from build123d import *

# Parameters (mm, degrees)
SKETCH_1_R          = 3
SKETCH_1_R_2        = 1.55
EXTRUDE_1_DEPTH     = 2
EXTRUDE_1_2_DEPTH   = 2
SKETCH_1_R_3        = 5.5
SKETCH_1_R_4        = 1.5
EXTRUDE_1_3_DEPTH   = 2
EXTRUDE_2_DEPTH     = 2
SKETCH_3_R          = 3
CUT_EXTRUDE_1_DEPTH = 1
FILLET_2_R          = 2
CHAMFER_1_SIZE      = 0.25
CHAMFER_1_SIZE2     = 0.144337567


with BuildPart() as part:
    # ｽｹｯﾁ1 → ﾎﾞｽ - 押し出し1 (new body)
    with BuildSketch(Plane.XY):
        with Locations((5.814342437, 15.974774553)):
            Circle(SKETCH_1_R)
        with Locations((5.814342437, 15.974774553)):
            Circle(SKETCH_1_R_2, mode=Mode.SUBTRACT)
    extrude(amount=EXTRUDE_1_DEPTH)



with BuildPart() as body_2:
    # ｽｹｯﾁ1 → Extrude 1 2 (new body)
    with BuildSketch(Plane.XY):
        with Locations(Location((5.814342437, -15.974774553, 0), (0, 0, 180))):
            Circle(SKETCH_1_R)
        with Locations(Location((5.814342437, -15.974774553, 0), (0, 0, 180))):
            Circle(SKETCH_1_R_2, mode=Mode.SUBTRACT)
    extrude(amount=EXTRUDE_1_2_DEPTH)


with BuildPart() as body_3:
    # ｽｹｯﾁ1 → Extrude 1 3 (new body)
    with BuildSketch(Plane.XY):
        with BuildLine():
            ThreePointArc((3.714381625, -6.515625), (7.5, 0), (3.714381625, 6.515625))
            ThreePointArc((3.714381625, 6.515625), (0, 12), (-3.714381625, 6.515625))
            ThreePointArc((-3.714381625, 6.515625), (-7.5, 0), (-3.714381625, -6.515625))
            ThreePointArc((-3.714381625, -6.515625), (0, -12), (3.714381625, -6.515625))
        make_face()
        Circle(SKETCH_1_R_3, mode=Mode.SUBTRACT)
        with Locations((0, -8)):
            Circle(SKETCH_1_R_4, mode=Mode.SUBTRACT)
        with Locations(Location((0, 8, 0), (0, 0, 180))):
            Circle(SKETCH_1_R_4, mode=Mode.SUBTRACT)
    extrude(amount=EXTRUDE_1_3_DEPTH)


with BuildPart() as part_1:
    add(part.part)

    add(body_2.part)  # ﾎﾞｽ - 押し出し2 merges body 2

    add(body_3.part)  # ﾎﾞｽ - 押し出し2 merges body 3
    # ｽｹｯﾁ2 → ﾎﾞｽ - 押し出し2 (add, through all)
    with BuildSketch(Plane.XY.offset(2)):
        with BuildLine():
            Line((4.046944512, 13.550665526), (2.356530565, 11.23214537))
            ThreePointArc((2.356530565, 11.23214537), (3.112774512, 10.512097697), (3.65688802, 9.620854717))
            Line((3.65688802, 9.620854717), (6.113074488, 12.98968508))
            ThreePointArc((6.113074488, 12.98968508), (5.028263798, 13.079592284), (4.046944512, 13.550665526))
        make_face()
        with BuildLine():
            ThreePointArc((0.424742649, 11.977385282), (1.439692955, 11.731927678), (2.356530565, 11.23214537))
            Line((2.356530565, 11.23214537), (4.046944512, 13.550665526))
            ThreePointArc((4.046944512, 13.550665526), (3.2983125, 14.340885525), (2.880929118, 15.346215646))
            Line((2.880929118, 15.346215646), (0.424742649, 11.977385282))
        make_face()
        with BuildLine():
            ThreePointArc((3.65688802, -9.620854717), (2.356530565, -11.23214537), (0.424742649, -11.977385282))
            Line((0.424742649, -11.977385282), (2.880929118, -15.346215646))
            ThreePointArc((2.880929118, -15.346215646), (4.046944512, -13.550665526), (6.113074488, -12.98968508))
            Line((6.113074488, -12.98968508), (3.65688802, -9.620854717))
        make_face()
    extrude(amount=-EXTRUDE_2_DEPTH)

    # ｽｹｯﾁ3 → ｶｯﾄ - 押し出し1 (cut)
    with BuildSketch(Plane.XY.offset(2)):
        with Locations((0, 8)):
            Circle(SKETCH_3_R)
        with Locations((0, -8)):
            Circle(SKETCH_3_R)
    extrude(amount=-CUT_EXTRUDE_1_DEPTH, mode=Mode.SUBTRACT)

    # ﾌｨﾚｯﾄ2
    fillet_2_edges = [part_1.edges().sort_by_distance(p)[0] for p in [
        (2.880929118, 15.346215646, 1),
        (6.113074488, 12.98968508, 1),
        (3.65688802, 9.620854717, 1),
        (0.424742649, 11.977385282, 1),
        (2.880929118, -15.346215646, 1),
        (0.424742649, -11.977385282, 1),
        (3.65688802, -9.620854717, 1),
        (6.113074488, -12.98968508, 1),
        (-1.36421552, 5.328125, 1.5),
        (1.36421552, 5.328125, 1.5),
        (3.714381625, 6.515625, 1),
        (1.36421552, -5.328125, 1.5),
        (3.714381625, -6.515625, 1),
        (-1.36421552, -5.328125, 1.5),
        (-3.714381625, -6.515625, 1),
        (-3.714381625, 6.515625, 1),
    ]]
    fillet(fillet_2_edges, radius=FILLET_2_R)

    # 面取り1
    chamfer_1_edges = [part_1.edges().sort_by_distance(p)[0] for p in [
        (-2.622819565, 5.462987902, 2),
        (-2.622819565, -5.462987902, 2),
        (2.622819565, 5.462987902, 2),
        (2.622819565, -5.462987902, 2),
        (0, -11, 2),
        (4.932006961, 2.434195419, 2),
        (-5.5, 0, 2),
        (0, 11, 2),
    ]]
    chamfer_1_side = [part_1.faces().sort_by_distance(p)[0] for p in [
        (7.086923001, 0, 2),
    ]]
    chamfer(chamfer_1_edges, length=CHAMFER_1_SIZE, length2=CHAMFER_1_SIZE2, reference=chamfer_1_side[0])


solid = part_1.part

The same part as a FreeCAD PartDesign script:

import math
import FreeCAD as App
import Part
import Sketcher
from FreeCAD import Vector
Q = App.Units.Quantity


def edges_at(feature, points):
    """Names of the edges that pass closest to the given points."""
    edges = feature.Shape.Edges
    near = lambda p: min(range(len(edges)), key=lambda i: edges[i].distToShape(Part.Vertex(*p))[0])
    return sorted({f"Edge{near(p) + 1}" for p in points})

doc = App.newDocument("Part")
body = doc.addObject("PartDesign::Body", "Body")

# Sketch on XY plane
sketch1 = body.newObject("Sketcher::SketchObject", "Sketch")
sketch1.AttachmentSupport = (doc.getObject("XY_Plane"), [""])
sketch1.MapMode = "FlatFace"
sketch1.addGeometry([
    Part.Circle(Vector(5.814342, 15.974775, 0), Vector(0, 0, 1), 3),
    Part.Circle(Vector(5.814342, 15.974775, 0), Vector(0, 0, 1), 1.55),
], False)
sketch1.addConstraint([
    Sketcher.Constraint("Coincident", 1, 3, 0, 3),
    Sketcher.Constraint("Diameter", 0, Q("6 mm")),
    Sketcher.Constraint("Diameter", 1, Q("3.1 mm")),
    Sketcher.Constraint("DistanceX", -1, 1, 0, 3, Q("5.814342 mm")),
    Sketcher.Constraint("DistanceY", -1, 1, 0, 3, Q("15.974775 mm")),
])
pad1 = body.newObject("PartDesign::Pad", "Pad")
pad1.Profile = sketch1
pad1.Length = 2
body2 = doc.addObject("PartDesign::Body", "Body001")

# Sketch on XY plane
sketch2 = body2.newObject("Sketcher::SketchObject", "Sketch001")
sketch2.AttachmentSupport = (doc.getObject("XY_Plane001"), [""])
sketch2.MapMode = "FlatFace"
sketch2.addGeometry([
    Part.Circle(Vector(5.814342, -15.974775, 0), Vector(0, 0, 1), 3),
    Part.Circle(Vector(5.814342, -15.974775, 0), Vector(0, 0, 1), 1.55),
], False)
sketch2.addConstraint([
    Sketcher.Constraint("Coincident", 1, 3, 0, 3),
    Sketcher.Constraint("Diameter", 0, Q("6 mm")),
    Sketcher.Constraint("Diameter", 1, Q("3.1 mm")),
    Sketcher.Constraint("DistanceX", -1, 1, 0, 3, Q("5.814342 mm")),
    Sketcher.Constraint("DistanceY", 0, 3, -1, 1, Q("15.974775 mm")),
])
pad2 = body2.newObject("PartDesign::Pad", "Pad001")
pad2.Profile = sketch2
pad2.Length = 2
body3 = doc.addObject("PartDesign::Body", "Body002")

# Sketch on XY plane
sketch3 = body3.newObject("Sketcher::SketchObject", "Sketch002")
sketch3.AttachmentSupport = (doc.getObject("XY_Plane002"), [""])
sketch3.MapMode = "FlatFace"
sketch3.addGeometry([
    Part.ArcOfCircle(Part.Circle(Vector(0, 0, 0), Vector(0, 0, 1), 7.5), math.radians(-60.313705), math.radians(60.313705)),  # 0
    Part.ArcOfCircle(Part.Circle(Vector(0, 8, 0), Vector(0, 0, 1), 4), math.radians(-21.783088), math.radians(201.783088)),  # 1
    Part.ArcOfCircle(Part.Circle(Vector(0, 0, 0), Vector(0, 0, 1), 7.5), math.radians(119.686295), math.radians(240.313705)),  # 2
    Part.ArcOfCircle(Part.Circle(Vector(0, -8, 0), Vector(0, 0, 1), 4), math.radians(158.216912), math.radians(381.783088)),  # 3
    Part.Circle(Vector(0, -8, 0), Vector(0, 0, 1), 1.5),  # 4
    Part.Circle(Vector(0, 0, 0), Vector(0, 0, 1), 5.5),  # 5
    Part.Circle(Vector(0, 8, 0), Vector(0, 0, 1), 1.5),  # 6
], False)
sketch3.addConstraint([
    Sketcher.Constraint("Coincident", 0, 2, 1, 1),
    Sketcher.Constraint("Coincident", 1, 2, 2, 1),
    Sketcher.Constraint("Coincident", 2, 2, 3, 1),
    Sketcher.Constraint("Coincident", 3, 2, 0, 1),
    Sketcher.Constraint("Coincident", 0, 3, -1, 1),
    Sketcher.Constraint("Coincident", 2, 3, -1, 1),
    Sketcher.Constraint("Coincident", 5, 3, -1, 1),
    Sketcher.Constraint("Coincident", 4, 3, 3, 3),
    Sketcher.Constraint("Coincident", 6, 3, 1, 3),
    Sketcher.Constraint("Equal", 0, 2),
    Sketcher.Constraint("Equal", 1, 3),
    Sketcher.Constraint("Equal", 4, 6),
    Sketcher.Constraint("Symmetric", 1, 3, 3, 3, -1, 1),
    Sketcher.Constraint("PointOnObject", 1, 3, -2),
    Sketcher.Constraint("Diameter", 4, Q("3 mm")),
    Sketcher.Constraint("Diameter", 5, Q("11 mm")),
    Sketcher.Constraint("Radius", 1, Q("4 mm")),
    Sketcher.Constraint("Radius", 0, Q("7.5 mm")),
    Sketcher.Constraint("DistanceY", -1, 1, 1, 3, Q("8 mm")),
])
pad3 = body3.newObject("PartDesign::Pad", "Pad002")
pad3.Profile = sketch3
pad3.Length = 2
body.AllowCompound = True
doc.recompute()

boolean = body.newObject("PartDesign::Boolean", "Boolean")
boolean.Type = "Fuse"
boolean.addObjects([body2])
doc.recompute()

boolean2 = body.newObject("PartDesign::Boolean", "Boolean001")
boolean2.Type = "Fuse"
boolean2.addObjects([body3])

# Sketch on XY plane
sketch4 = body.newObject("Sketcher::SketchObject", "Sketch003")
sketch4.AttachmentSupport = (doc.getObject("XY_Plane"), [""])
sketch4.MapMode = "FlatFace"
sketch4.AttachmentOffset = App.Placement(Vector(0, 0, 2), App.Rotation())
sketch4.addGeometry([
    Part.ArcOfCircle(Part.Circle(Vector(0, 8, 0), Vector(0, 0, 1), 4), math.radians(23.904518), math.radians(53.904518)),  # 0
    Part.LineSegment(Vector(3.656888, 9.620855, 0), Vector(6.113074, 12.989685, 0)),  # 1
    Part.ArcOfCircle(Part.Circle(Vector(5.814342, 15.974775, 0), Vector(0, 0, 1), 3), math.radians(-126.095482), math.radians(-84.285167)),  # 2
    Part.ArcOfCircle(Part.Circle(Vector(5.814342, 15.974775, 0), Vector(0, 0, 1), 3), math.radians(-167.905797), math.radians(-126.095482)),  # 3
    Part.LineSegment(Vector(2.880929, 15.346216, 0), Vector(0.424743, 11.977385, 0)),  # 4
    Part.ArcOfCircle(Part.Circle(Vector(0, 8, 0), Vector(0, 0, 1), 4), math.radians(53.904518), math.radians(83.904518)),  # 5
    Part.ArcOfCircle(Part.Circle(Vector(0, -8, 0), Vector(0, 0, 1), 4), math.radians(-83.904518), math.radians(-23.904518)),  # 6
    Part.LineSegment(Vector(0.424743, -11.977385, 0), Vector(2.880929, -15.346216, 0)),  # 7
    Part.ArcOfCircle(Part.Circle(Vector(5.814342, -15.974775, 0), Vector(0, 0, 1), 3), math.radians(84.285167), math.radians(167.905797)),  # 8
    Part.LineSegment(Vector(6.113074, -12.989685, 0), Vector(3.656888, -9.620855, 0)),  # 9
], False)
sketch4.addConstraint([
    Sketcher.Constraint("Coincident", 0, 1, 1, 1),
    Sketcher.Constraint("Coincident", 1, 2, 2, 2),
    Sketcher.Constraint("Tangent", 2, 1, 3, 2),
    Sketcher.Constraint("Coincident", 3, 1, 4, 1),
    Sketcher.Constraint("Coincident", 4, 2, 5, 2),
    Sketcher.Constraint("Tangent", 5, 1, 0, 2),
    Sketcher.Constraint("Coincident", 6, 1, 7, 1),
    Sketcher.Constraint("Coincident", 7, 2, 8, 2),
    Sketcher.Constraint("Coincident", 8, 1, 9, 1),
    Sketcher.Constraint("Coincident", 9, 2, 6, 2),
    Sketcher.Constraint("Equal", 2, 3),
    Sketcher.Constraint("Equal", 0, 5),
    Sketcher.Constraint("Equal", 5, 6),
    Sketcher.Constraint("Equal", 3, 8),
    Sketcher.Constraint("Symmetric", 0, 3, 6, 3, -1, 1),
    Sketcher.Constraint("Symmetric", 2, 3, 8, 3, -1),
    Sketcher.Constraint("Symmetric", 4, 2, 6, 1, -1),
    Sketcher.Constraint("Parallel", 1, 4),
    Sketcher.Constraint("Parallel", 7, 9),
    Sketcher.Constraint("Vertical", 3, 1, 7, 2),
    Sketcher.Constraint("Vertical", 1, 2, 8, 1),
    Sketcher.Constraint("Equal", 1, 4),
    Sketcher.Constraint("Radius", 0, Q("4 mm")),
    Sketcher.Constraint("Radius", 2, Q("3 mm")),
    Sketcher.Constraint("DistanceY", -1, 1, 0, 3, Q("8 mm")),
    Sketcher.Constraint("DistanceX", 4, 2, 2, 1, Q("3.622202 mm")),
    Sketcher.Constraint("DistanceX", 6, 1, 8, 3, Q("5.3896 mm")),
    Sketcher.Constraint("DistanceY", 8, 1, 6, 1, Q("1.0123 mm")),
    Sketcher.Constraint("DistanceX", -1, 1, 0, 1, Q("3.656888 mm")),
    Sketcher.Constraint("DistanceX", -1, 1, 3, 1, Q("2.880929 mm")),
    Sketcher.Constraint("DistanceX", -1, 1, 5, 1, Q("2.356531 mm")),
])
pad4 = body.newObject("PartDesign::Pad", "Pad003")
pad4.Profile = sketch4
pad4.Length = 2
pad4.Reversed = True

# Sketch on XY plane
sketch5 = body.newObject("Sketcher::SketchObject", "Sketch004")
sketch5.AttachmentSupport = (doc.getObject("XY_Plane"), [""])
sketch5.MapMode = "FlatFace"
sketch5.AttachmentOffset = App.Placement(Vector(0, 0, 2), App.Rotation())
sketch5.addGeometry([
    Part.Circle(Vector(0, 8, 0), Vector(0, 0, 1), 3),
    Part.Circle(Vector(0, -8, 0), Vector(0, 0, 1), 3),
], False)
sketch5.addConstraint([
    Sketcher.Constraint("Equal", 0, 1),
    Sketcher.Constraint("Symmetric", 0, 3, 1, 3, -1, 1),
    Sketcher.Constraint("PointOnObject", 0, 3, -2),
    Sketcher.Constraint("Diameter", 0, Q("6 mm")),
    Sketcher.Constraint("DistanceY", -1, 1, 0, 3, Q("8 mm")),
])
pocket1 = body.newObject("PartDesign::Pocket", "Pocket")
pocket1.Profile = sketch5
pocket1.Length = 1
doc.recompute()

fillet = body.newObject("PartDesign::Fillet", "Fillet")
fillet.Base = (pocket1, edges_at(pocket1, [
    (2.881, 15.346, 1),
    (6.113, 12.99, 1),
    (3.657, 9.621, 1),
    (0.425, 11.977, 1),
    (2.881, -15.346, 1),
    (0.425, -11.977, 1),
    (3.657, -9.621, 1),
    (6.113, -12.99, 1),
    (-1.364, 5.328, 1.5),
    (1.364, 5.328, 1.5),
    (3.714, 6.516, 1),
    (1.364, -5.328, 1.5),
    (3.714, -6.516, 1),
    (-1.364, -5.328, 1.5),
    (-3.714, -6.516, 1),
    (-3.714, 6.516, 1),
]))
fillet.Radius = 2
doc.recompute()

chamfer = body.newObject("PartDesign::Chamfer", "Chamfer")
chamfer.Base = (fillet, edges_at(fillet, [
    (-2.623, 5.463, 2),
    (-2.623, -5.463, 2),
    (2.623, 5.463, 2),
    (2.623, -5.463, 2),
    (0, -11, 2),
    (4.932, 2.434, 2),
    (-5.5, 0, 2),
    (0, 11, 2),
]))
chamfer.ChamferType = "Two distances"
chamfer.Size = 0.25
chamfer.Size2 = 0.144338

doc.recompute()
